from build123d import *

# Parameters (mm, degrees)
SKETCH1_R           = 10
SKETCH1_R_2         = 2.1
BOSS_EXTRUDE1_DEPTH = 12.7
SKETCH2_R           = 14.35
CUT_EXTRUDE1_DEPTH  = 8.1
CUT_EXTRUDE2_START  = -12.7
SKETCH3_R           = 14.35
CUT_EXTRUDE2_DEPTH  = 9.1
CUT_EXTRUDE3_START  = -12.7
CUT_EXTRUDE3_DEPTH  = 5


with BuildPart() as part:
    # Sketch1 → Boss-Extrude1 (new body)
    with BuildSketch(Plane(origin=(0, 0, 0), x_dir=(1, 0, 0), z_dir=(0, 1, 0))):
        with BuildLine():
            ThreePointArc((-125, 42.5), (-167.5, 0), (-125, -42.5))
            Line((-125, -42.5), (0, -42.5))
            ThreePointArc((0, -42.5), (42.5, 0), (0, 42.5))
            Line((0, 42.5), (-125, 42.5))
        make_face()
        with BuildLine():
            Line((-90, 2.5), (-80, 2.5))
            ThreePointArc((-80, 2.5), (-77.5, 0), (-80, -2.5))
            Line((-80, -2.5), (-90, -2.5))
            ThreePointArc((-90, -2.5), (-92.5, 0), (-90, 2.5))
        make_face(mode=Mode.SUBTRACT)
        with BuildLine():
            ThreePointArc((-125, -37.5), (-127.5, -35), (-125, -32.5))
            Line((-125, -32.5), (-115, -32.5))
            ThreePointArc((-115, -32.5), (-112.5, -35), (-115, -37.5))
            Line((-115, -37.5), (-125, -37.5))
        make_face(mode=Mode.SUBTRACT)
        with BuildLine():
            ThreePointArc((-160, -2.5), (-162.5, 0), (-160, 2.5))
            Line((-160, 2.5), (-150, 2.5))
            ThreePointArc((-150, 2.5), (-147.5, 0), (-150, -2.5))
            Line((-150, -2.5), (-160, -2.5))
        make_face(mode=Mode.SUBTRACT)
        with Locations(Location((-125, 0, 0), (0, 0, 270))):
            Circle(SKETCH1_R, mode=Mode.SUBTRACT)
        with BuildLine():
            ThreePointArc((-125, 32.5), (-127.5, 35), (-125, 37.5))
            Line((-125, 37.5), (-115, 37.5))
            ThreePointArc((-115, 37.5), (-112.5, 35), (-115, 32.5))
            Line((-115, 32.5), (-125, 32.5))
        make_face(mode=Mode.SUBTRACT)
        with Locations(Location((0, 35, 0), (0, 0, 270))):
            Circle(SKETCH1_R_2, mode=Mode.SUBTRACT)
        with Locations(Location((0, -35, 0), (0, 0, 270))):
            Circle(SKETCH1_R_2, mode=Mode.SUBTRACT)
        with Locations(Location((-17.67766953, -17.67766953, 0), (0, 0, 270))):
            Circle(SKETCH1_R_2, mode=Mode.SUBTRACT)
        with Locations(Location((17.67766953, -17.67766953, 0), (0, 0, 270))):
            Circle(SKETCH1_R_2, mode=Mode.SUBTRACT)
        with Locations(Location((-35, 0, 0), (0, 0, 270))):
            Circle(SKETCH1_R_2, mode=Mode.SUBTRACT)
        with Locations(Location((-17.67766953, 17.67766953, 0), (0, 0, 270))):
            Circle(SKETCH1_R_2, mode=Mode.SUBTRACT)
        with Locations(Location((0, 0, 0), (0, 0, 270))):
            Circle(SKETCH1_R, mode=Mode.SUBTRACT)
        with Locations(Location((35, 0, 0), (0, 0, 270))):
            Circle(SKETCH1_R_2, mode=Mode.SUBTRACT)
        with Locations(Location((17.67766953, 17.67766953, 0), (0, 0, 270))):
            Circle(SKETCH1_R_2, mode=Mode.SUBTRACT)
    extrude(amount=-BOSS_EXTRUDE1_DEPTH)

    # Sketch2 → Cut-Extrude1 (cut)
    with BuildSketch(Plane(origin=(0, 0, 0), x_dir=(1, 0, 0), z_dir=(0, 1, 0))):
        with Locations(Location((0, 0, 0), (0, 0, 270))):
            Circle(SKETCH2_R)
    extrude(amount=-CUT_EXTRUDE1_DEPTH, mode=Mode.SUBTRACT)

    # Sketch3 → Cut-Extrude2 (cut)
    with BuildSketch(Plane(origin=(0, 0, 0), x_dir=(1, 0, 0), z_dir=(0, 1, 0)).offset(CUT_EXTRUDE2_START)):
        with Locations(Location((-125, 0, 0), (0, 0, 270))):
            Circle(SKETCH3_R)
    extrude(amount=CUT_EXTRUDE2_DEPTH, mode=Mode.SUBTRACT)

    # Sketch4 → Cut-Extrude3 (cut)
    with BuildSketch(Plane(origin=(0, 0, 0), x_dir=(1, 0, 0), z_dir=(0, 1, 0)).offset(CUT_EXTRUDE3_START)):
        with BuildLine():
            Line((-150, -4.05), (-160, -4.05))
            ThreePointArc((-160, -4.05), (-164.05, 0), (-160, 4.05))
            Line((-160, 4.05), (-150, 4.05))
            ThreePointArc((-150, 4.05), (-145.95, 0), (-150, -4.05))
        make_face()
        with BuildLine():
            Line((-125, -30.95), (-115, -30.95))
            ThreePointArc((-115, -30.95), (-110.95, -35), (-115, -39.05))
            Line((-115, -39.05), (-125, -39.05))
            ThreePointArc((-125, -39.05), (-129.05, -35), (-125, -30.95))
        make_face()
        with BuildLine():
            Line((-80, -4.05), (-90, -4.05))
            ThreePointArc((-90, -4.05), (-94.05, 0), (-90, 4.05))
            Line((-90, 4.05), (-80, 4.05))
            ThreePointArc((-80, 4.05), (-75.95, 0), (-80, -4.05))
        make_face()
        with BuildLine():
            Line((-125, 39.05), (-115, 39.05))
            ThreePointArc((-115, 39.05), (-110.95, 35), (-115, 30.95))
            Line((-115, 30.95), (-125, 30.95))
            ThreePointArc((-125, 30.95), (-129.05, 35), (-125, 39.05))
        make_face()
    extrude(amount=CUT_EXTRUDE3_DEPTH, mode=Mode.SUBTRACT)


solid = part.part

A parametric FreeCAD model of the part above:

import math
import FreeCAD as App
import Part
import Sketcher

doc = App.newDocument("Part")
body = doc.addObject("PartDesign::Body", "Body")

# Sketch on XZ plane
sketch1 = body.newObject("Sketcher::SketchObject", "Sketch")
sketch1.AttachmentSupport = (doc.getObject("XZ_Plane"), [""])
sketch1.MapMode = "FlatFace"
sketch1.addGeometry(Part.ArcOfCircle(Part.Circle(App.Vector(-125, 0, 0), App.Vector(0, 0, 1), 42.5), math.radians(90), math.radians(270)), False)
sketch1.addGeometry(Part.LineSegment(App.Vector(-125, 42.5, 0), App.Vector(0, 42.5, 0)), False)
sketch1.addGeometry(Part.ArcOfCircle(Part.Circle(App.Vector(0, 0, 0), App.Vector(0, 0, 1), 42.5), math.radians(-90), math.radians(90)), False)
sketch1.addGeometry(Part.LineSegment(App.Vector(0, -42.5, 0), App.Vector(-125, -42.5, 0)), False)
sketch1.addGeometry(Part.LineSegment(App.Vector(-115, 37.5, 0), App.Vector(-125, 37.5, 0)), False)
sketch1.addGeometry(Part.ArcOfCircle(Part.Circle(App.Vector(-125, 35, 0), App.Vector(0, 0, 1), 2.5), math.radians(90), math.radians(270)), False)
sketch1.addGeometry(Part.LineSegment(App.Vector(-125, 32.5, 0), App.Vector(-115, 32.5, 0)), False)
sketch1.addGeometry(Part.ArcOfCircle(Part.Circle(App.Vector(-115, 35, 0), App.Vector(0, 0, 1), 2.5), math.radians(-90), math.radians(90)), False)
sketch1.addGeometry(Part.Circle(App.Vector(0, 35, 0), App.Vector(0, 0, 1), 2.1), False)
sketch1.addGeometry(Part.Circle(App.Vector(-17.7, 17.7, 0), App.Vector(0, 0, 1), 2.1), False)
sketch1.addGeometry(Part.Circle(App.Vector(17.7, 17.7, 0), App.Vector(0, 0, 1), 2.1), False)
sketch1.addGeometry(Part.LineSegment(App.Vector(-150, 2.5, 0), App.Vector(-160, 2.5, 0)), False)
sketch1.addGeometry(Part.ArcOfCircle(Part.Circle(App.Vector(-160, 0, 0), App.Vector(0, 0, 1), 2.5), math.radians(90), math.radians(270)), False)
sketch1.addGeometry(Part.LineSegment(App.Vector(-160, -2.5, 0), App.Vector(-150, -2.5, 0)), False)
sketch1.addGeometry(Part.ArcOfCircle(Part.Circle(App.Vector(-150, 0, 0), App.Vector(0, 0, 1), 2.5), math.radians(-90), math.radians(90)), False)
sketch1.addGeometry(Part.Circle(App.Vector(-125, 0, 0), App.Vector(0, 0, 1), 10), False)
sketch1.addGeometry(Part.ArcOfCircle(Part.Circle(App.Vector(-90, 0, 0), App.Vector(0, 0, 1), 2.5), math.radians(90), math.radians(270)), False)
sketch1.addGeometry(Part.LineSegment(App.Vector(-90, -2.5, 0), App.Vector(-80, -2.5, 0)), False)
sketch1.addGeometry(Part.ArcOfCircle(Part.Circle(App.Vector(-80, 0, 0), App.Vector(0, 0, 1), 2.5), math.radians(-90), math.radians(90)), False)
sketch1.addGeometry(Part.LineSegment(App.Vector(-80, 2.5, 0), App.Vector(-90, 2.5, 0)), False)
sketch1.addGeometry(Part.LineSegment(App.Vector(-115, -32.5, 0), App.Vector(-125, -32.5, 0)), False)
sketch1.addGeometry(Part.ArcOfCircle(Part.Circle(App.Vector(-125, -35, 0), App.Vector(0, 0, 1), 2.5), math.radians(90), math.radians(270)), False)
sketch1.addGeometry(Part.LineSegment(App.Vector(-125, -37.5, 0), App.Vector(-115, -37.5, 0)), False)
sketch1.addGeometry(Part.ArcOfCircle(Part.Circle(App.Vector(-115, -35, 0), App.Vector(0, 0, 1), 2.5), math.radians(-90), math.radians(90)), False)
sketch1.addGeometry(Part.Circle(App.Vector(-35, 0, 0), App.Vector(0, 0, 1), 2.1), False)
sketch1.addGeometry(Part.Circle(App.Vector(-17.7, -17.7, 0), App.Vector(0, 0, 1), 2.1), False)
sketch1.addGeometry(Part.Circle(App.Vector(0, 0, 0), App.Vector(0, 0, 1), 10), False)
sketch1.addGeometry(Part.Circle(App.Vector(35, 0, 0), App.Vector(0, 0, 1), 2.1), False)
sketch1.addGeometry(Part.Circle(App.Vector(17.7, -17.7, 0), App.Vector(0, 0, 1), 2.1), False)
sketch1.addGeometry(Part.Circle(App.Vector(0, -35, 0), App.Vector(0, 0, 1), 2.1), False)
sketch1.addConstraint(Sketcher.Constraint("Tangent", 0, 1, 1, 1))
sketch1.addConstraint(Sketcher.Constraint("Tangent", 1, 2, 2, 2))
sketch1.addConstraint(Sketcher.Constraint("Tangent", 2, 1, 3, 1))
sketch1.addConstraint(Sketcher.Constraint("Tangent", 3, 2, 0, 2))
sketch1.addConstraint(Sketcher.Constraint("Tangent", 4, 2, 5, 1))
sketch1.addConstraint(Sketcher.Constraint("Tangent", 5, 2, 6, 1))
sketch1.addConstraint(Sketcher.Constraint("Tangent", 6, 2, 7, 1))
sketch1.addConstraint(Sketcher.Constraint("Tangent", 7, 2, 4, 1))
sketch1.addConstraint(Sketcher.Constraint("Tangent", 11, 2, 12, 1))
sketch1.addConstraint(Sketcher.Constraint("Tangent", 12, 2, 13, 1))
sketch1.addConstraint(Sketcher.Constraint("Tangent", 13, 2, 14, 1))
sketch1.addConstraint(Sketcher.Constraint("Tangent", 14, 2, 11, 1))
sketch1.addConstraint(Sketcher.Constraint("Tangent", 16, 2, 17, 1))
sketch1.addConstraint(Sketcher.Constraint("Tangent", 17, 2, 18, 1))
sketch1.addConstraint(Sketcher.Constraint("Tangent", 18, 2, 19, 1))
sketch1.addConstraint(Sketcher.Constraint("Tangent", 19, 2, 16, 1))
sketch1.addConstraint(Sketcher.Constraint("Tangent", 20, 2, 21, 1))
sketch1.addConstraint(Sketcher.Constraint("Tangent", 21, 2, 22, 1))
sketch1.addConstraint(Sketcher.Constraint("Tangent", 22, 2, 23, 1))
sketch1.addConstraint(Sketcher.Constraint("Tangent", 23, 2, 20, 1))
sketch1.addConstraint(Sketcher.Constraint("Horizontal", 1))
sketch1.addConstraint(Sketcher.Constraint("Horizontal", 3))
sketch1.addConstraint(Sketcher.Constraint("Horizontal", 4))
sketch1.addConstraint(Sketcher.Constraint("Horizontal", 6))
sketch1.addConstraint(Sketcher.Constraint("Horizontal", 11))
sketch1.addConstraint(Sketcher.Constraint("Horizontal", 13))
sketch1.addConstraint(Sketcher.Constraint("Horizontal", 17))
sketch1.addConstraint(Sketcher.Constraint("Horizontal", 19))
sketch1.addConstraint(Sketcher.Constraint("Horizontal", 20))
sketch1.addConstraint(Sketcher.Constraint("Horizontal", 22))
sketch1.addConstraint(Sketcher.Constraint("Coincident", 2, 3, -1, 1))
sketch1.addConstraint(Sketcher.Constraint("Coincident", 26, 3, -1, 1))
sketch1.addConstraint(Sketcher.Constraint("Coincident", 15, 3, 0, 3))
sketch1.addConstraint(Sketcher.Constraint("Equal", 8, 9))
sketch1.addConstraint(Sketcher.Constraint("Equal", 9, 10))
sketch1.addConstraint(Sketcher.Constraint("Equal", 7, 12))
sketch1.addConstraint(Sketcher.Constraint("Equal", 14, 16))
sketch1.addConstraint(Sketcher.Constraint("Equal", 18, 21))
sketch1.addConstraint(Sketcher.Constraint("Equal", 10, 24))
sketch1.addConstraint(Sketcher.Constraint("Equal", 24, 25))
sketch1.addConstraint(Sketcher.Constraint("Equal", 15, 26))
sketch1.addConstraint(Sketcher.Constraint("Equal", 25, 27))
sketch1.addConstraint(Sketcher.Constraint("Equal", 27, 28))
sketch1.addConstraint(Sketcher.Constraint("Equal", 28, 29))
sketch1.addConstraint(Sketcher.Constraint("Symmetric", 10, 3, 25, 3, -1, 1))
sketch1.addConstraint(Sketcher.Constraint("Symmetric", 24, 3, 27, 3, -1, 1))
sketch1.addConstraint(Sketcher.Constraint("Symmetric", 9, 3, 28, 3, -1, 1))
sketch1.addConstraint(Sketcher.Constraint("Symmetric", 8, 3, 29, 3, -1, 1))
sketch1.addConstraint(Sketcher.Constraint("Symmetric", 9, 3, 10, 3, -2))
sketch1.addConstraint(Sketcher.Constraint("Symmetric", 5, 3, 21, 3, -1))
sketch1.addConstraint(Sketcher.Constraint("PointOnObject", 8, 3, -2))
sketch1.addConstraint(Sketcher.Constraint("PointOnObject", 12, 3, -1))
sketch1.addConstraint(Sketcher.Constraint("PointOnObject", 16, 3, -1))
sketch1.addConstraint(Sketcher.Constraint("PointOnObject", 24, 3, -1))
sketch1.addConstraint(Sketcher.Constraint("Horizontal", 7, 3, 8, 3))
sketch1.addConstraint(Sketcher.Constraint("Vertical", 0, 3, 5, 3))
sketch1.addConstraint(Sketcher.Constraint("Vertical", 7, 3, 23, 3))
sketch1.addConstraint(Sketcher.Constraint("Equal", 6, 11))
sketch1.addConstraint(Sketcher.Constraint("Equal", 13, 17))
sketch1.addConstraint(Sketcher.Constraint("Diameter", 15, 20.0))
sketch1.addConstraint(Sketcher.Constraint("Diameter", 8, 4.2))
sketch1.addConstraint(Sketcher.Constraint("Radius", 0, 42.5))
sketch1.addConstraint(Sketcher.Constraint("Radius", 5, 2.5))
sketch1.addConstraint(Sketcher.Constraint("DistanceX", 1, 1, 1, 2, 125.0))
sketch1.addConstraint(Sketcher.Constraint("DistanceX", 4, 2, 4, 1, 10.0))
sketch1.addConstraint(Sketcher.Constraint("DistanceY", -1, 1, 5, 3, 35.0))
sketch1.addConstraint(Sketcher.Constraint("DistanceX", 12, 3, -1, 1, 160.0))
sketch1.addConstraint(Sketcher.Constraint("DistanceX", 16, 3, -1, 1, 90.0))
sketch1.addConstraint(Sketcher.Constraint("DistanceX", 24, 3, -1, 1, 35.0))
sketch1.addConstraint(Sketcher.Constraint("DistanceX", 9, 3, -1, 1, 17.67767))
sketch1.addConstraint(Sketcher.Constraint("DistanceY", -1, 1, 9, 3, 17.67767))
pad1 = body.newObject("PartDesign::Pad", "Pad")
pad1.Profile = sketch1
pad1.Length = 12.7

# Sketch on XZ plane
sketch2 = body.newObject("Sketcher::SketchObject", "Sketch001")
sketch2.AttachmentSupport = (doc.getObject("XZ_Plane"), [""])
sketch2.MapMode = "FlatFace"
sketch2.addGeometry(Part.Circle(App.Vector(0, 0, 0), App.Vector(0, 0, 1), 14), False)
sketch2.addConstraint(Sketcher.Constraint("Coincident", 0, 3, -1, 1))
sketch2.addConstraint(Sketcher.Constraint("Diameter", 0, 28.7))
pocket1 = body.newObject("PartDesign::Pocket", "Pocket")
pocket1.Profile = sketch2
pocket1.Length = 8.1
pocket1.Reversed = True

# Sketch on XZ plane
sketch3 = body.newObject("Sketcher::SketchObject", "Sketch002")
sketch3.AttachmentSupport = (doc.getObject("XZ_Plane"), [""])
sketch3.MapMode = "FlatFace"
sketch3.AttachmentOffset = App.Placement(App.Vector(0, 0, 12.7), App.Rotation())
sketch3.addGeometry(Part.Circle(App.Vector(-125, 0, 0), App.Vector(0, 0, 1), 14), False)
sketch3.addConstraint(Sketcher.Constraint("PointOnObject", 0, 3, -1))
sketch3.addConstraint(Sketcher.Constraint("Diameter", 0, 28.7))
sketch3.addConstraint(Sketcher.Constraint("DistanceX", 0, 3, -1, 1, 125.0))
pocket2 = body.newObject("PartDesign::Pocket", "Pocket001")
pocket2.Profile = sketch3
pocket2.Length = 9.1

# Sketch on XZ plane
sketch4 = body.newObject("Sketcher::SketchObject", "Sketch003")
sketch4.AttachmentSupport = (doc.getObject("XZ_Plane"), [""])
sketch4.MapMode = "FlatFace"
sketch4.AttachmentOffset = App.Placement(App.Vector(0, 0, 12.7), App.Rotation())
sketch4.addGeometry(Part.LineSegment(App.Vector(-160, 4, 0), App.Vector(-150, 4, 0)), False)
sketch4.addGeometry(Part.ArcOfCircle(Part.Circle(App.Vector(-150, 0, 0), App.Vector(0, 0, 1), 4), math.radians(-90), math.radians(90)), False)
sketch4.addGeometry(Part.LineSegment(App.Vector(-150, -4, 0), App.Vector(-160, -4, 0)), False)
sketch4.addGeometry(Part.ArcOfCircle(Part.Circle(App.Vector(-160, 0, 0), App.Vector(0, 0, 1), 4), math.radians(90), math.radians(270)), False)
sketch4.addGeometry(Part.LineSegment(App.Vector(-115, 30.9, 0), App.Vector(-125, 30.9, 0)), False)
sketch4.addGeometry(Part.ArcOfCircle(Part.Circle(App.Vector(-125, 35, 0), App.Vector(0, 0, 1), 4), math.radians(90), math.radians(270)), False)
sketch4.addGeometry(Part.LineSegment(App.Vector(-125, 39, 0), App.Vector(-115, 39, 0)), False)
sketch4.addGeometry(Part.ArcOfCircle(Part.Circle(App.Vector(-115, 35, 0), App.Vector(0, 0, 1), 4), math.radians(-90), math.radians(90)), False)
sketch4.addGeometry(Part.LineSegment(App.Vector(-90, 4, 0), App.Vector(-80, 4, 0)), False)
sketch4.addGeometry(Part.ArcOfCircle(Part.Circle(App.Vector(-80, 0, 0), App.Vector(0, 0, 1), 4), math.radians(-90), math.radians(90)), False)
sketch4.addGeometry(Part.LineSegment(App.Vector(-80, -4, 0), App.Vector(-90, -4, 0)), False)
sketch4.addGeometry(Part.ArcOfCircle(Part.Circle(App.Vector(-90, 0, 0), App.Vector(0, 0, 1), 4), math.radians(90), math.radians(270)), False)
sketch4.addGeometry(Part.LineSegment(App.Vector(-115, -39, 0), App.Vector(-125, -39, 0)), False)
sketch4.addGeometry(Part.ArcOfCircle(Part.Circle(App.Vector(-125, -35, 0), App.Vector(0, 0, 1), 4), math.radians(90), math.radians(270)), False)
sketch4.addGeometry(Part.LineSegment(App.Vector(-125, -30.9, 0), App.Vector(-115, -30.9, 0)), False)
sketch4.addGeometry(Part.ArcOfCircle(Part.Circle(App.Vector(-115, -35, 0), App.Vector(0, 0, 1), 4), math.radians(-90), math.radians(90)), False)
sketch4.addConstraint(Sketcher.Constraint("Tangent", 0, 2, 1, 2))
sketch4.addConstraint(Sketcher.Constraint("Tangent", 1, 1, 2, 1))
sketch4.addConstraint(Sketcher.Constraint("Tangent", 2, 2, 3, 2))
sketch4.addConstraint(Sketcher.Constraint("Tangent", 3, 1, 0, 1))
sketch4.addConstraint(Sketcher.Constraint("Tangent", 4, 2, 5, 2))
sketch4.addConstraint(Sketcher.Constraint("Tangent", 5, 1, 6, 1))
sketch4.addConstraint(Sketcher.Constraint("Tangent", 6, 2, 7, 2))
sketch4.addConstraint(Sketcher.Constraint("Tangent", 7, 1, 4, 1))
sketch4.addConstraint(Sketcher.Constraint("Tangent", 8, 2, 9, 2))
sketch4.addConstraint(Sketcher.Constraint("Tangent", 9, 1, 10, 1))
sketch4.addConstraint(Sketcher.Constraint("Tangent", 10, 2, 11, 2))
sketch4.addConstraint(Sketcher.Constraint("Tangent", 11, 1, 8, 1))
sketch4.addConstraint(Sketcher.Constraint("Tangent", 12, 2, 13, 2))
sketch4.addConstraint(Sketcher.Constraint("Tangent", 13, 1, 14, 1))
sketch4.addConstraint(Sketcher.Constraint("Tangent", 14, 2, 15, 2))
sketch4.addConstraint(Sketcher.Constraint("Tangent", 15, 1, 12, 1))
sketch4.addConstraint(Sketcher.Constraint("Horizontal", 0))
sketch4.addConstraint(Sketcher.Constraint("Horizontal", 2))
sketch4.addConstraint(Sketcher.Constraint("Horizontal", 4))
sketch4.addConstraint(Sketcher.Constraint("Horizontal", 6))
sketch4.addConstraint(Sketcher.Constraint("Horizontal", 8))
sketch4.addConstraint(Sketcher.Constraint("Horizontal", 10))
sketch4.addConstraint(Sketcher.Constraint("Horizontal", 12))
sketch4.addConstraint(Sketcher.Constraint("Horizontal", 14))
sketch4.addConstraint(Sketcher.Constraint("Equal", 3, 5))
sketch4.addConstraint(Sketcher.Constraint("Equal", 7, 9))
sketch4.addConstraint(Sketcher.Constraint("Equal", 11, 13))
sketch4.addConstraint(Sketcher.Constraint("Symmetric", 5, 3, 13, 3, -1))
sketch4.addConstraint(Sketcher.Constraint("PointOnObject", 1, 3, -1))
sketch4.addConstraint(Sketcher.Constraint("PointOnObject", 9, 3, -1))
sketch4.addConstraint(Sketcher.Constraint("Vertical", 7, 3, 15, 3))
sketch4.addConstraint(Sketcher.Constraint("Equal", 2, 4))
sketch4.addConstraint(Sketcher.Constraint("Equal", 6, 8))
sketch4.addConstraint(Sketcher.Constraint("DistanceX", 0, 1, 0, 2, 10.0))
sketch4.addConstraint(Sketcher.Constraint("Radius", 1, 4.05))
sketch4.addConstraint(Sketcher.Constraint("DistanceX", 1, 3, -1, 1, 150.0))
sketch4.addConstraint(Sketcher.Constraint("DistanceX", 5, 3, -1, 1, 125.0))
sketch4.addConstraint(Sketcher.Constraint("DistanceY", -1, 1, 5, 3, 35.0))
sketch4.addConstraint(Sketcher.Constraint("DistanceX", 9, 3, -1, 1, 80.0))
pocket3 = body.newObject("PartDesign::Pocket", "Pocket002")
pocket3.Profile = sketch4
pocket3.Length = 5

doc.recompute()
